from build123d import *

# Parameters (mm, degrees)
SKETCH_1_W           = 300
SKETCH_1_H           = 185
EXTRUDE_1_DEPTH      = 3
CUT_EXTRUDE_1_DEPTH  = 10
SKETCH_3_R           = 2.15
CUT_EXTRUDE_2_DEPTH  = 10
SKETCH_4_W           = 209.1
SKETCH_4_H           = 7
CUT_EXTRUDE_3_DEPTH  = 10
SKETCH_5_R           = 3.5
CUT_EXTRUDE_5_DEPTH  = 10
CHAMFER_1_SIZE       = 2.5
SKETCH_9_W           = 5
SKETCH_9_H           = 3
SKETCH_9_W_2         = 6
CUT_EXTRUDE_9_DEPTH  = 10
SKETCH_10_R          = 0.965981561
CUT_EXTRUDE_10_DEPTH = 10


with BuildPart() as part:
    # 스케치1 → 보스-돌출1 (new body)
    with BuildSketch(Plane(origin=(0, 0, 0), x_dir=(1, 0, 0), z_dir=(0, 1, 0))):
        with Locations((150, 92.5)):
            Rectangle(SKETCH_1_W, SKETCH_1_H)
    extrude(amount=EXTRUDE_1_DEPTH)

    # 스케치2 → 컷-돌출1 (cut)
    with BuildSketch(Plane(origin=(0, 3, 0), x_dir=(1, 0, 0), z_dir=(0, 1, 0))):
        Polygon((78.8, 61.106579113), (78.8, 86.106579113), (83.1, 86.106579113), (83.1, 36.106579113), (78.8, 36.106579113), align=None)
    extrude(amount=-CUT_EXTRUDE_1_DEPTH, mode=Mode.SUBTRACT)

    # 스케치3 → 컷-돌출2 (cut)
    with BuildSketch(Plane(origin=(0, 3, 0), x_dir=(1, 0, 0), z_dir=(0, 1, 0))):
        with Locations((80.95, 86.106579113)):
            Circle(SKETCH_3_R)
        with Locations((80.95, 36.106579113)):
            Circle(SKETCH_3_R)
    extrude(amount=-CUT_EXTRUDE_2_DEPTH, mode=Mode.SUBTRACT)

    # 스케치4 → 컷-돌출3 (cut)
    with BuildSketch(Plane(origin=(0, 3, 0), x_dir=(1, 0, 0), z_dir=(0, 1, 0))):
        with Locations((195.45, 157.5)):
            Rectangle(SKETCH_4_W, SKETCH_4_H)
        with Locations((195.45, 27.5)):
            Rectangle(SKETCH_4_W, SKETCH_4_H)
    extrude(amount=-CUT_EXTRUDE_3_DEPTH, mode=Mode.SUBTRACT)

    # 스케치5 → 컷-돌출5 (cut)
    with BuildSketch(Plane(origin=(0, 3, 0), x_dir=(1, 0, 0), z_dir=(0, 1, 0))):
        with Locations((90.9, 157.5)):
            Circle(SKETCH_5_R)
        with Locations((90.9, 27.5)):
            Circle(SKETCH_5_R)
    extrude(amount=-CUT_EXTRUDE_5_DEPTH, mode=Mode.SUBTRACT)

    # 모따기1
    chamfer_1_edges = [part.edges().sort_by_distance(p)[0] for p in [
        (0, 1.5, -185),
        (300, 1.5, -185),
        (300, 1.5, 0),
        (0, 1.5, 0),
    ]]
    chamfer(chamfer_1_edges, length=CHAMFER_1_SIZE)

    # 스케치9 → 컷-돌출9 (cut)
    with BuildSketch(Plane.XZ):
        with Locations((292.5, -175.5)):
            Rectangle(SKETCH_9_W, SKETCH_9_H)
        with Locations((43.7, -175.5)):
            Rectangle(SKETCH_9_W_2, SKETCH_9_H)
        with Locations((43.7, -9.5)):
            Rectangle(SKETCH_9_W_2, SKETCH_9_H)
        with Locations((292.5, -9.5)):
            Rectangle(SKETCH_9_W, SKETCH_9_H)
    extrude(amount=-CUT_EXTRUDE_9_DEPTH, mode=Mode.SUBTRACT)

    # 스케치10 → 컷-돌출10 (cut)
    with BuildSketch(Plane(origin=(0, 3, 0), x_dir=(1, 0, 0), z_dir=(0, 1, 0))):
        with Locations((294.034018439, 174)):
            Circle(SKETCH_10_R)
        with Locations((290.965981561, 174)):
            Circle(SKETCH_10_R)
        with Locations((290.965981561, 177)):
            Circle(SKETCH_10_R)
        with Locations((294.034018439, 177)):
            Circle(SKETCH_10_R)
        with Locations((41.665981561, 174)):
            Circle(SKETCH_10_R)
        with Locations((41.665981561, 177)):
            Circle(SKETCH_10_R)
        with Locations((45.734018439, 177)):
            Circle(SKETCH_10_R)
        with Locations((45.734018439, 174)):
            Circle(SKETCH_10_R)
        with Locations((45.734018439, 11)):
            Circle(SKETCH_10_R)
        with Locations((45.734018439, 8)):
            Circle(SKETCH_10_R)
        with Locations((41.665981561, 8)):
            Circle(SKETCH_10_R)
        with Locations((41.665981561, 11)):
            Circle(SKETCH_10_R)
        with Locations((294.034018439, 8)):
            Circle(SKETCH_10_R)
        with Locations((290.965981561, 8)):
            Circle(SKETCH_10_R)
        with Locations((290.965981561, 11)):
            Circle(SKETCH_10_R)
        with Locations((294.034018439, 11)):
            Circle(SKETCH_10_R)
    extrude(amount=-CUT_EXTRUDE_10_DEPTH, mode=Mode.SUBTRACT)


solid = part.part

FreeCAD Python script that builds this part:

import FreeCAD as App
import Part
import Sketcher
Q = App.Units.Quantity


def edges_at(feature, points):
    """Names of the edges that pass closest to the given points."""
    edges = feature.Shape.Edges
    near = lambda p: min(range(len(edges)), key=lambda i: edges[i].distToShape(Part.Vertex(*p))[0])
    return sorted({f"Edge{near(p) + 1}" for p in points})


def add_polygon(sketch, points):
    """Adds a closed chain of lines whose ends are joined by coincident constraints."""
    first, n = sketch.GeometryCount, len(points)
    for a, b in zip(points, points[1:] + points[:1]):
        sketch.addGeometry(Part.LineSegment(App.Vector(*a, 0), App.Vector(*b, 0)), False)
    for i in range(n):
        sketch.addConstraint(Sketcher.Constraint("Coincident", first + i, 2, first + (i + 1) % n, 1))

doc = App.newDocument("Part")
body = doc.addObject("PartDesign::Body", "Body")

sketch1 = doc.addObject("Sketcher::SketchObject", "Sketch")
body.addObject(sketch1)
sketch1.AttachmentSupport = (doc.XZ_Plane, [""])
sketch1.MapMode = "FlatFace"
add_polygon(sketch1, [(0, -185), (0, 0), (300, 0), (300, -185)])
sketch1.addConstraint([
    Sketcher.Constraint("Vertical", 0),
    Sketcher.Constraint("Horizontal", 1),
    Sketcher.Constraint("Vertical", 2),
    Sketcher.Constraint("Horizontal", 3),
    Sketcher.Constraint("Coincident", 0, 2, -1, 1),
    Sketcher.Constraint("DistanceX", 1, 1, 1, 2, Q("300 mm")),
    Sketcher.Constraint("DistanceY", 0, 1, 0, 2, Q("185 mm")),
])
pad1 = doc.addObject("PartDesign::Pad", "Pad")
body.addObject(pad1)
pad1.Profile = sketch1
pad1.Length = 3
pad1.Reversed = True

sketch2 = doc.addObject("Sketcher::SketchObject", "Sketch001")
body.addObject(sketch2)
sketch2.AttachmentSupport = (doc.XZ_Plane, [""])
sketch2.MapMode = "FlatFace"
sketch2.AttachmentOffset = App.Placement(App.Vector(0, 0, -3), App.Rotation())
add_polygon(sketch2, [(78.8, -86.106579), (78.8, -36.106579), (83.1, -36.106579), (83.1, -86.106579)])
sketch2.addConstraint([
    Sketcher.Constraint("Vertical", 0),
    Sketcher.Constraint("Horizontal", 1),
    Sketcher.Constraint("Vertical", 2),
    Sketcher.Constraint("Horizontal", 3),
    Sketcher.Constraint("DistanceY", 0, 1, 0, 2, Q("50 mm")),
    Sketcher.Constraint("DistanceX", 1, 1, 1, 2, Q("4.3 mm")),
    Sketcher.Constraint("DistanceX", -1, 1, 0, 2, Q("78.8 mm")),
    Sketcher.Constraint("DistanceY", 0, 2, -1, 1, Q("36.106579 mm")),
])
pocket1 = doc.addObject("PartDesign::Pocket", "Pocket")
body.addObject(pocket1)
pocket1.Profile = sketch2
pocket1.Length = 10
pocket1.Reversed = True

sketch3 = doc.addObject("Sketcher::SketchObject", "Sketch002")
body.addObject(sketch3)
sketch3.AttachmentSupport = (doc.XZ_Plane, [""])
sketch3.MapMode = "FlatFace"
sketch3.AttachmentOffset = App.Placement(App.Vector(0, 0, -3), App.Rotation())
sketch3.addGeometry([
    Part.Circle(App.Vector(80.95, -86.106579, 0), App.Vector(0, 0, 1), 2.15),
    Part.Circle(App.Vector(80.95, -36.106579, 0), App.Vector(0, 0, 1), 2.15),
], False)
sketch3.addConstraint([
    Sketcher.Constraint("Equal", 0, 1),
    Sketcher.Constraint("Vertical", 0, 3, 1, 3),
    Sketcher.Constraint("Diameter", 0, Q("4.3 mm")),
    Sketcher.Constraint("DistanceY", 0, 3, 1, 3, Q("50 mm")),
    Sketcher.Constraint("DistanceX", -1, 1, 0, 3, Q("80.95 mm")),
    Sketcher.Constraint("DistanceY", 0, 3, -1, 1, Q("86.106579 mm")),
])
pocket2 = doc.addObject("PartDesign::Pocket", "Pocket001")
body.addObject(pocket2)
pocket2.Profile = sketch3
pocket2.Length = 10
pocket2.Reversed = True

sketch4 = doc.addObject("Sketcher::SketchObject", "Sketch003")
body.addObject(sketch4)
sketch4.AttachmentSupport = (doc.XZ_Plane, [""])
sketch4.MapMode = "FlatFace"
sketch4.AttachmentOffset = App.Placement(App.Vector(0, 0, -3), App.Rotation())
add_polygon(sketch4, [(90.9, -161), (90.9, -154), (300, -154), (300, -161)])
add_polygon(sketch4, [(90.9, -31), (90.9, -24), (300, -24), (300, -31)])
sketch4.addConstraint([
    Sketcher.Constraint("Vertical", 0),
    Sketcher.Constraint("Horizontal", 1),
    Sketcher.Constraint("Vertical", 2),
    Sketcher.Constraint("Horizontal", 3),
    Sketcher.Constraint("Vertical", 4),
    Sketcher.Constraint("Horizontal", 5),
    Sketcher.Constraint("Vertical", 6),
    Sketcher.Constraint("Horizontal", 7),
    Sketcher.Constraint("Vertical", 3, 2, 4, 2),
    Sketcher.Constraint("Vertical", 2, 2, 5, 2),
    Sketcher.Constraint("Equal", 2, 4),
    Sketcher.Constraint("DistanceY", 0, 1, 0, 2, Q("7 mm")),
    Sketcher.Constraint("DistanceX", 1, 1, 1, 2, Q("209.1 mm")),
    Sketcher.Constraint("DistanceY", 0, 2, -1, 1, Q("154 mm")),
    Sketcher.Constraint("DistanceX", -1, 1, 1, 2, Q("300 mm")),
    Sketcher.Constraint("DistanceY", 4, 2, -1, 1, Q("24 mm")),
])
pocket3 = doc.addObject("PartDesign::Pocket", "Pocket002")
body.addObject(pocket3)
pocket3.Profile = sketch4
pocket3.Length = 10
pocket3.Reversed = True

sketch5 = doc.addObject("Sketcher::SketchObject", "Sketch004")
body.addObject(sketch5)
sketch5.AttachmentSupport = (doc.XZ_Plane, [""])
sketch5.MapMode = "FlatFace"
sketch5.AttachmentOffset = App.Placement(App.Vector(0, 0, -3), App.Rotation())
sketch5.addGeometry([
    Part.Circle(App.Vector(90.9, -157.5, 0), App.Vector(0, 0, 1), 3.5),
    Part.Circle(App.Vector(90.9, -27.5, 0), App.Vector(0, 0, 1), 3.5),
], False)
sketch5.addConstraint([
    Sketcher.Constraint("Equal", 0, 1),
    Sketcher.Constraint("Vertical", 0, 3, 1, 3),
    Sketcher.Constraint("Diameter", 0, Q("7 mm")),
    Sketcher.Constraint("DistanceY", 0, 3, 1, 3, Q("130 mm")),
    Sketcher.Constraint("DistanceX", -1, 1, 0, 3, Q("90.9 mm")),
    Sketcher.Constraint("DistanceY", 0, 3, -1, 1, Q("157.5 mm")),
])
pocket4 = doc.addObject("PartDesign::Pocket", "Pocket003")
body.addObject(pocket4)
pocket4.Profile = sketch5
pocket4.Length = 10
pocket4.Reversed = True
doc.recompute()

chamfer = doc.addObject("PartDesign::Chamfer", "Chamfer")
body.addObject(chamfer)
chamfer.Base = (pocket4, edges_at(pocket4, [
    (0, 1.5, -185),
    (300, 1.5, -185),
    (300, 1.5, 0),
    (0, 1.5, 0),
]))
chamfer.Size = 2.5

sketch6 = doc.addObject("Sketcher::SketchObject", "Sketch005")
body.addObject(sketch6)
sketch6.AttachmentSupport = (doc.XZ_Plane, [""])
sketch6.MapMode = "FlatFace"
add_polygon(sketch6, [(290, -174), (290, -177), (295, -177), (295, -174)])
add_polygon(sketch6, [(40.7, -174), (40.7, -177), (46.7, -177), (46.7, -174)])
add_polygon(sketch6, [(40.7, -8), (40.7, -11), (46.7, -11), (46.7, -8)])
add_polygon(sketch6, [(290, -8), (290, -11), (295, -11), (295, -8)])
sketch6.addConstraint([
    Sketcher.Constraint("Vertical", 0),
    Sketcher.Constraint("Horizontal", 1),
    Sketcher.Constraint("Vertical", 2),
    Sketcher.Constraint("Horizontal", 3),
    Sketcher.Constraint("Vertical", 4),
    Sketcher.Constraint("Horizontal", 5),
    Sketcher.Constraint("Vertical", 6),
    Sketcher.Constraint("Horizontal", 7),
    Sketcher.Constraint("Vertical", 8),
    Sketcher.Constraint("Horizontal", 9),
    Sketcher.Constraint("Vertical", 10),
    Sketcher.Constraint("Horizontal", 11),
    Sketcher.Constraint("Vertical", 12),
    Sketcher.Constraint("Horizontal", 13),
    Sketcher.Constraint("Vertical", 14),
    Sketcher.Constraint("Horizontal", 15),
    Sketcher.Constraint("Horizontal", 1, 2, 4, 2),
    Sketcher.Constraint("Horizontal", 3, 2, 6, 2),
    Sketcher.Constraint("Horizontal", 9, 2, 12, 2),
    Sketcher.Constraint("Horizontal", 11, 2, 14, 2),
    Sketcher.Constraint("Vertical", 7, 2, 8, 2),
    Sketcher.Constraint("Vertical", 6, 2, 9, 2),
    Sketcher.Constraint("Vertical", 3, 2, 12, 2),
    Sketcher.Constraint("Vertical", 2, 2, 13, 2),
    Sketcher.Constraint("Equal", 6, 8),
    Sketcher.Constraint("DistanceX", 1, 1, 1, 2, Q("5 mm")),
    Sketcher.Constraint("DistanceX", 5, 1, 5, 2, Q("6 mm")),
    Sketcher.Constraint("DistanceY", 0, 2, 0, 1, Q("3 mm")),
    Sketcher.Constraint("DistanceX", -1, 1, 0, 2, Q("290 mm")),
    Sketcher.Constraint("DistanceY", 0, 2, -1, 1, Q("177 mm")),
    Sketcher.Constraint("DistanceY", 8, 2, -1, 1, Q("11 mm")),
    Sketcher.Constraint("DistanceX", -1, 1, 4, 2, Q("40.7 mm")),
])
pocket5 = doc.addObject("PartDesign::Pocket", "Pocket004")
body.addObject(pocket5)
pocket5.Profile = sketch6
pocket5.Length = 10

sketch7 = doc.addObject("Sketcher::SketchObject", "Sketch006")
body.addObject(sketch7)
sketch7.AttachmentSupport = (doc.XZ_Plane, [""])
sketch7.MapMode = "FlatFace"
sketch7.AttachmentOffset = App.Placement(App.Vector(0, 0, -3), App.Rotation())
sketch7.addGeometry([
    Part.Circle(App.Vector(294.034018, -174, 0), App.Vector(0, 0, 1), 0.965982),
    Part.Circle(App.Vector(290.965982, -174, 0), App.Vector(0, 0, 1), 0.965982),
    Part.Circle(App.Vector(290.965982, -177, 0), App.Vector(0, 0, 1), 0.965982),
    Part.Circle(App.Vector(294.034018, -177, 0), App.Vector(0, 0, 1), 0.965982),
    Part.Circle(App.Vector(41.665982, -174, 0), App.Vector(0, 0, 1), 0.965982),
    Part.Circle(App.Vector(41.665982, -177, 0), App.Vector(0, 0, 1), 0.965982),
    Part.Circle(App.Vector(45.734018, -177, 0), App.Vector(0, 0, 1), 0.965982),
    Part.Circle(App.Vector(45.734018, -174, 0), App.Vector(0, 0, 1), 0.965982),
    Part.Circle(App.Vector(45.734018, -11, 0), App.Vector(0, 0, 1), 0.965982),
    Part.Circle(App.Vector(45.734018, -8, 0), App.Vector(0, 0, 1), 0.965982),
    Part.Circle(App.Vector(41.665982, -8, 0), App.Vector(0, 0, 1), 0.965982),
    Part.Circle(App.Vector(41.665982, -11, 0), App.Vector(0, 0, 1), 0.965982),
    Part.Circle(App.Vector(294.034018, -8, 0), App.Vector(0, 0, 1), 0.965982),
    Part.Circle(App.Vector(290.965982, -8, 0), App.Vector(0, 0, 1), 0.965982),
    Part.Circle(App.Vector(290.965982, -11, 0), App.Vector(0, 0, 1), 0.965982),
    Part.Circle(App.Vector(294.034018, -11, 0), App.Vector(0, 0, 1), 0.965982),
], False)
sketch7.addConstraint([
    Sketcher.Constraint("Equal", 0, 1),
    Sketcher.Constraint("Equal", 1, 2),
    Sketcher.Constraint("Equal", 2, 3),
    Sketcher.Constraint("Equal", 3, 4),
    Sketcher.Constraint("Equal", 4, 5),
    Sketcher.Constraint("Equal", 5, 6),
    Sketcher.Constraint("Equal", 6, 7),
    Sketcher.Constraint("Equal", 7, 8),
    Sketcher.Constraint("Equal", 8, 9),
    Sketcher.Constraint("Equal", 9, 10),
    Sketcher.Constraint("Equal", 10, 11),
    Sketcher.Constraint("Equal", 11, 12),
    Sketcher.Constraint("Equal", 12, 13),
    Sketcher.Constraint("Equal", 13, 14),
    Sketcher.Constraint("Equal", 14, 15),
    Sketcher.Constraint("Horizontal", 0, 3, 1, 3),
    Sketcher.Constraint("Horizontal", 2, 3, 3, 3),
    Sketcher.Constraint("Horizontal", 1, 3, 4, 3),
    Sketcher.Constraint("Horizontal", 3, 3, 5, 3),
    Sketcher.Constraint("Horizontal", 5, 3, 6, 3),
    Sketcher.Constraint("Horizontal", 4, 3, 7, 3),
    Sketcher.Constraint("Horizontal", 9, 3, 10, 3),
    Sketcher.Constraint("Horizontal", 8, 3, 11, 3),
    Sketcher.Constraint("Horizontal", 10, 3, 12, 3),
    Sketcher.Constraint("Horizontal", 12, 3, 13, 3),
    Sketcher.Constraint("Horizontal", 11, 3, 14, 3),
    Sketcher.Constraint("Horizontal", 14, 3, 15, 3),
    Sketcher.Constraint("Vertical", 1, 3, 2, 3),
    Sketcher.Constraint("Vertical", 0, 3, 3, 3),
    Sketcher.Constraint("Vertical", 4, 3, 5, 3),
    Sketcher.Constraint("Vertical", 6, 3, 7, 3),
    Sketcher.Constraint("Vertical", 7, 3, 8, 3),
    Sketcher.Constraint("Vertical", 8, 3, 9, 3),
    Sketcher.Constraint("Vertical", 5, 3, 10, 3),
    Sketcher.Constraint("Vertical", 10, 3, 11, 3),
    Sketcher.Constraint("Vertical", 3, 3, 12, 3),
    Sketcher.Constraint("Vertical", 2, 3, 13, 3),
    Sketcher.Constraint("Vertical", 13, 3, 14, 3),
    Sketcher.Constraint("Vertical", 12, 3, 15, 3),
    Sketcher.Constraint("DistanceY", 0, 3, -1, 1, Q("174 mm")),
    Sketcher.Constraint("DistanceY", 2, 3, -1, 1, Q("177 mm")),
    Sketcher.Constraint("DistanceY", 8, 3, -1, 1, Q("11 mm")),
    Sketcher.Constraint("DistanceY", 9, 3, -1, 1, Q("8 mm")),
    Sketcher.Constraint("DistanceX", 4, 3, 1, 3, Q("249.3 mm")),
    Sketcher.Constraint("DistanceX", 6, 3, 3, 3, Q("248.3 mm")),
    Sketcher.Constraint("Diameter", 0, Q("1.931963 mm")),
    Sketcher.Constraint("DistanceX", -1, 1, 0, 3, Q("294.034018 mm")),
    Sketcher.Constraint("DistanceX", -1, 1, 1, 3, Q("290.965982 mm")),
])
pocket6 = doc.addObject("PartDesign::Pocket", "Pocket005")
body.addObject(pocket6)
pocket6.Profile = sketch7
pocket6.Length = 10
pocket6.Reversed = True

doc.recompute()
